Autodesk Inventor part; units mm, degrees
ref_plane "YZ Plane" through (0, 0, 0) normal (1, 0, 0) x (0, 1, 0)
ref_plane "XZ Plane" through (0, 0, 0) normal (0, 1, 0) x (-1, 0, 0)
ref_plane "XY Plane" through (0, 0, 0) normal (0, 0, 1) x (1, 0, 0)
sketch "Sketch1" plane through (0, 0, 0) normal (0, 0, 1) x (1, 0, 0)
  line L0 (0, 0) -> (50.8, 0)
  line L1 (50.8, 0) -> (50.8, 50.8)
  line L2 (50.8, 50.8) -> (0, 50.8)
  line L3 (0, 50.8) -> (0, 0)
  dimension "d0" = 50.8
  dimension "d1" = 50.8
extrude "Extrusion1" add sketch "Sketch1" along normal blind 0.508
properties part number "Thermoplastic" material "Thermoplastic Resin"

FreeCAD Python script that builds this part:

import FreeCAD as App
import Part
import Sketcher
from FreeCAD import Vector
Q = App.Units.Quantity

doc = App.newDocument("Part")
body = doc.addObject("PartDesign::Body", "Body")

# Sketch on XY plane
sketch1 = body.newObject("Sketcher::SketchObject", "Sketch")
sketch1.AttachmentSupport = (doc.getObject("XY_Plane"), [""])
sketch1.MapMode = "FlatFace"
sketch1.addGeometry([
    Part.LineSegment(Vector(0, 51, 0), Vector(0, 0, 0)),
    Part.LineSegment(Vector(0, 0, 0), Vector(51, 0, 0)),
    Part.LineSegment(Vector(51, 0, 0), Vector(51, 51, 0)),
    Part.LineSegment(Vector(51, 51, 0), Vector(0, 51, 0)),
], False)
sketch1.addConstraint([
    Sketcher.Constraint("Coincident", 0, 2, 1, 1),
    Sketcher.Constraint("Coincident", 1, 2, 2, 1),
    Sketcher.Constraint("Coincident", 2, 2, 3, 1),
    Sketcher.Constraint("Coincident", 3, 2, 0, 1),
    Sketcher.Constraint("Vertical", 0),
    Sketcher.Constraint("Horizontal", 1),
    Sketcher.Constraint("Vertical", 2),
    Sketcher.Constraint("Horizontal", 3),
    Sketcher.Constraint("Coincident", 0, 2, -1, 1),
    Sketcher.Constraint("Equal", 3, 0),
    Sketcher.Constraint("DistanceX", 1, 1, 1, 2, Q("2 in")),
])
pad1 = body.newObject("PartDesign::Pad", "Pad")
pad1.Profile = sketch1
pad1.Length = Q("0.02 in")

doc.recompute()
